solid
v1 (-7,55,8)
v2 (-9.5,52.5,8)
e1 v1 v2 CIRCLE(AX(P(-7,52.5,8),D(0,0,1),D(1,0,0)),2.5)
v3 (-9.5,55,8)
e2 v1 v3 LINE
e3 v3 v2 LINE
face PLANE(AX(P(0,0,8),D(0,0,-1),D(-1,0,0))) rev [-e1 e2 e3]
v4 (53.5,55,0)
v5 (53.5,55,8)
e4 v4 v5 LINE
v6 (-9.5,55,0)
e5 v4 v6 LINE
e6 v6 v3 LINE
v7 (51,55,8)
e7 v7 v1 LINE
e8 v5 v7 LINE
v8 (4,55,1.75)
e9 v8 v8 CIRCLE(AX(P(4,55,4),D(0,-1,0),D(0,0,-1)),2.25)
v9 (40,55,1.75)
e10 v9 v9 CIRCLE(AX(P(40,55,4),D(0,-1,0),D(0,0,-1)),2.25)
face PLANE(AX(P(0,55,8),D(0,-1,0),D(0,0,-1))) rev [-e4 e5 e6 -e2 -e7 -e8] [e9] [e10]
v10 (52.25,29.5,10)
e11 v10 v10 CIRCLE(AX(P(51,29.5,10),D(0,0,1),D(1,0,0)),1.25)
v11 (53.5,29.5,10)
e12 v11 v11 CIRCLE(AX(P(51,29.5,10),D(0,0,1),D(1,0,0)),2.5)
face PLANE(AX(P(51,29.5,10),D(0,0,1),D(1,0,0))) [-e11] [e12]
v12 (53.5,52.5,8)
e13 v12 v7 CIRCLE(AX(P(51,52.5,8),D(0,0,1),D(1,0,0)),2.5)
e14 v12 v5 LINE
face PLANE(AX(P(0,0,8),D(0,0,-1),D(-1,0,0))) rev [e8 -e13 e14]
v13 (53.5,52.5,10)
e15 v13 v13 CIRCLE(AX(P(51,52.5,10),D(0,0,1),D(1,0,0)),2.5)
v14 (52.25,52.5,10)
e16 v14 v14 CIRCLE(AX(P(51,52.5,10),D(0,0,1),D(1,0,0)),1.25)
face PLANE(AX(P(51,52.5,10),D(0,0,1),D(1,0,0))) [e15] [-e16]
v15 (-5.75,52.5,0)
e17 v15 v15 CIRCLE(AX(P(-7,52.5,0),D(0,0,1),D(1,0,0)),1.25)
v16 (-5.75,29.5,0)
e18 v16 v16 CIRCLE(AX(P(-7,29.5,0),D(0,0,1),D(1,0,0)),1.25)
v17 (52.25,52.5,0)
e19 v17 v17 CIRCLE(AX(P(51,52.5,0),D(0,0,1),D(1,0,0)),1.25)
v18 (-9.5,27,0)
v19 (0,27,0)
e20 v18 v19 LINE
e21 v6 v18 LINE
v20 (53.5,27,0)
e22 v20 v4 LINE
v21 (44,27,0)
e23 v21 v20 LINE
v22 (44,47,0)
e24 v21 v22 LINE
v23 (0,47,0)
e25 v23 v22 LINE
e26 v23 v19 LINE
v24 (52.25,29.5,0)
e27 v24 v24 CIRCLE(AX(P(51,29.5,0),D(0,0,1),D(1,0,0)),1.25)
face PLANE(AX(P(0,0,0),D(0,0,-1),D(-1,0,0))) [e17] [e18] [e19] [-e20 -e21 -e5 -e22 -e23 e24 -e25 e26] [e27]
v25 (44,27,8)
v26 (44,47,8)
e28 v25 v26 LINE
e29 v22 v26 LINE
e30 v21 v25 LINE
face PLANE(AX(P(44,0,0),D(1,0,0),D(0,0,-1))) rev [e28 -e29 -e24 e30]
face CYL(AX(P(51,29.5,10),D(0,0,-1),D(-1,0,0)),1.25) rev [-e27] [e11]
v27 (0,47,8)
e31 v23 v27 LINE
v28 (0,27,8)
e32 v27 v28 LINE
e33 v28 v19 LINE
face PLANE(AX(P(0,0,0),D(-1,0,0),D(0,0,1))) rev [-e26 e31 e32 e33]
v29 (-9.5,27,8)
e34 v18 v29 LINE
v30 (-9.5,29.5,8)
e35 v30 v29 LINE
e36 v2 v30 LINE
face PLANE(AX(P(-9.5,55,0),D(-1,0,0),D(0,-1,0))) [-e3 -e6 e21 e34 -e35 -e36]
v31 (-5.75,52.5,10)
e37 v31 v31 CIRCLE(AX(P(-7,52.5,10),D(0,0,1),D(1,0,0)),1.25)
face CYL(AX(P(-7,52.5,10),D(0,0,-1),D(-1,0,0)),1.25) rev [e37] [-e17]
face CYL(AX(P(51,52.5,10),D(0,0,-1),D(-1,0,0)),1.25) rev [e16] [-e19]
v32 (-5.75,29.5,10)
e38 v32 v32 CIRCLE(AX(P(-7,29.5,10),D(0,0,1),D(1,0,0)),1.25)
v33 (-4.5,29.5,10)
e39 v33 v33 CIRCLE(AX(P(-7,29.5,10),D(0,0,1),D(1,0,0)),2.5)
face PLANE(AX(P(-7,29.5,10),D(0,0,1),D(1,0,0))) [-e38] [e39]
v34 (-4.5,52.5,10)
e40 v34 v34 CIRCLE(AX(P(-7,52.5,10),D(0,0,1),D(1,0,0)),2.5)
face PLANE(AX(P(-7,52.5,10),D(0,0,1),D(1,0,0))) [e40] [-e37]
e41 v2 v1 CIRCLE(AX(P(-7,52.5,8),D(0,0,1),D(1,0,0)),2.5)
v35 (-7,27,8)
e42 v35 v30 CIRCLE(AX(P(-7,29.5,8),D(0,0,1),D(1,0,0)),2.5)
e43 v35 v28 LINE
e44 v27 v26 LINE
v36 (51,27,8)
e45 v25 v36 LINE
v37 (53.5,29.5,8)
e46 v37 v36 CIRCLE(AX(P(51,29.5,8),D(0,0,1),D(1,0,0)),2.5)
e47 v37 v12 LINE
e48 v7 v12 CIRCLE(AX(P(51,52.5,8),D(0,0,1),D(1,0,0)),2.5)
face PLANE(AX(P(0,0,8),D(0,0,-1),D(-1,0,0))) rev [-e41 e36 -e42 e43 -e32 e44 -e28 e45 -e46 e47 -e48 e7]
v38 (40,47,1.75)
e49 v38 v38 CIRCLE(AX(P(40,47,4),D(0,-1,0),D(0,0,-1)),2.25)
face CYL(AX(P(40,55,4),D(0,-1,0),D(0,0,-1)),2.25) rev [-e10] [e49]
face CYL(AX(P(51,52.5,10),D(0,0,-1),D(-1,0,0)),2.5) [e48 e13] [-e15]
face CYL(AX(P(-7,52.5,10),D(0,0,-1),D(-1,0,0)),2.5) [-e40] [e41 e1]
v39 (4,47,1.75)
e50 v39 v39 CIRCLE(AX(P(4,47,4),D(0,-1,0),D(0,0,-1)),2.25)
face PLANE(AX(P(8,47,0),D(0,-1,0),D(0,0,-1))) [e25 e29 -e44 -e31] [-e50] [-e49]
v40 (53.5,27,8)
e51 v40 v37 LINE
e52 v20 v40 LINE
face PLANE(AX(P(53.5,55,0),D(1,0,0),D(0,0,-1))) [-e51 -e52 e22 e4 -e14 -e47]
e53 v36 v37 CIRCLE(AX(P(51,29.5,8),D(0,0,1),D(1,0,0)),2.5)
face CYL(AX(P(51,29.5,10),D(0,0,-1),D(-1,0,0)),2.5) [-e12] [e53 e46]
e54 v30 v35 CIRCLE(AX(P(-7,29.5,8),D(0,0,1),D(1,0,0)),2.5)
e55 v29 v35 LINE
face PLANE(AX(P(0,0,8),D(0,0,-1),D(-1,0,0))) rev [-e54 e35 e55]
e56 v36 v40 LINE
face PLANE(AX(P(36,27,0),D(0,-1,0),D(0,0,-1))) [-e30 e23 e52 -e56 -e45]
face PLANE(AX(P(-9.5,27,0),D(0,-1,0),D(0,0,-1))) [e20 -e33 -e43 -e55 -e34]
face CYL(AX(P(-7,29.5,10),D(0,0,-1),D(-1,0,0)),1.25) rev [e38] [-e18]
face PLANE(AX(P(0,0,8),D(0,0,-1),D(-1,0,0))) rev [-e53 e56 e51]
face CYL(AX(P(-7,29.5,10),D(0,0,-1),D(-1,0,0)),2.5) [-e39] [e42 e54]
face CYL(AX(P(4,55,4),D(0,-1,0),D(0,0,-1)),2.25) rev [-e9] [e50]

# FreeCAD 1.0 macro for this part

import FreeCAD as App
import Part
import Sketcher

doc = App.newDocument("Part")
params = doc.addObject("Spreadsheet::Sheet", "Params")
for row, (alias, value) in enumerate([
    ("sketch1_width", "44 mm"),
    ("sketch1_width2", "28 mm"),
    ("sketch1_height", "55 mm"),
    ("sketch1_height2", "39 mm"),
    ("pad1_length", "8 mm"),
    ("sketch2_diameter", "3.5 mm"),
    ("pocket1_length", "20 mm"),
    ("sketch3_width", "63 mm"),
    ("sketch3_width2", "28 mm"),
    ("sketch3_height", "20 mm"),
    ("pad2_length", "8 mm"),
    ("sketch4_diameter", "5 mm"),
    ("sketch4_diameter2", "2.5 mm"),
    ("pad3_length", "2 mm"),
    ("sketch5_diameter", "2.5 mm"),
    ("sketch6_width", "28 mm"),
    ("sketch6_height", "8 mm"),
    ("pocket3_length", "10 mm"),
    ("sketch7_width", "28 mm"),
    ("sketch7_height", "8 mm"),
    ("pad4_length", "8 mm"),
    ("sketch8_width", "44 mm"),
    ("sketch8_height", "47 mm"),
    ("pocket4_length", "8 mm"),
    ("sketch9_diameter", "4.5 mm"),
    ("pocket5_length", "8 mm"),
], start=1):
    params.set(f"A{row}", alias)
    params.set(f"B{row}", "=" + value)
    params.setAlias(f"B{row}", alias)

body = doc.addObject("PartDesign::Body", "Body")

sketch1 = doc.addObject("Sketcher::SketchObject", "Sketch")
body.addObject(sketch1)
sketch1.AttachmentSupport = (doc.XY_Plane, [""])
sketch1.MapMode = "FlatFace"
sketch1.addGeometry([
    Part.LineSegment(App.Vector(0, 55, 0), App.Vector(0, 0, 0)),
    Part.LineSegment(App.Vector(0, 0, 0), App.Vector(44, 0, 0)),
    Part.LineSegment(App.Vector(44, 0, 0), App.Vector(44, 55, 0)),
    Part.LineSegment(App.Vector(44, 55, 0), App.Vector(0, 55, 0)),
    Part.LineSegment(App.Vector(8, 8, 0), App.Vector(8, 47, 0)),
    Part.LineSegment(App.Vector(8, 47, 0), App.Vector(36, 47, 0)),
    Part.LineSegment(App.Vector(36, 47, 0), App.Vector(36, 8, 0)),
    Part.LineSegment(App.Vector(36, 8, 0), App.Vector(8, 8, 0)),
], False)
sketch1.addConstraint([
    Sketcher.Constraint("Coincident", 0, 2, 1, 1),
    Sketcher.Constraint("Coincident", 1, 2, 2, 1),
    Sketcher.Constraint("Coincident", 2, 2, 3, 1),
    Sketcher.Constraint("Coincident", 3, 2, 0, 1),
    Sketcher.Constraint("Coincident", 4, 2, 5, 1),
    Sketcher.Constraint("Coincident", 5, 2, 6, 1),
    Sketcher.Constraint("Coincident", 6, 2, 7, 1),
    Sketcher.Constraint("Coincident", 7, 2, 4, 1),
    Sketcher.Constraint("Vertical", 0),
    Sketcher.Constraint("Horizontal", 1),
    Sketcher.Constraint("Vertical", 2),
    Sketcher.Constraint("Horizontal", 3),
    Sketcher.Constraint("Vertical", 4),
    Sketcher.Constraint("Horizontal", 5),
    Sketcher.Constraint("Vertical", 6),
    Sketcher.Constraint("Horizontal", 7),
    Sketcher.Constraint("Coincident", 0, 2, -1, 1),
    Sketcher.Constraint("DistanceX", 1, 1, 1, 2, 44.0),
    Sketcher.Constraint("DistanceX", 5, 1, 5, 2, 28.0),
    Sketcher.Constraint("DistanceY", 0, 2, 0, 1, 55.0),
    Sketcher.Constraint("DistanceY", 4, 1, 4, 2, 39.0),
    Sketcher.Constraint("DistanceX", -1, 1, 4, 2, 8.0),
    Sketcher.Constraint("DistanceY", -1, 1, 4, 2, 47.0),
])
sketch1.setExpression("Constraints[17]", "Params.sketch1_width")
sketch1.setExpression("Constraints[18]", "Params.sketch1_width2")
sketch1.setExpression("Constraints[19]", "Params.sketch1_height")
sketch1.setExpression("Constraints[20]", "Params.sketch1_height2")
pad1 = doc.addObject("PartDesign::Pad", "Pad")
body.addObject(pad1)
pad1.Profile = sketch1
pad1.setExpression("Length", "Params.pad1_length")

sketch2 = doc.addObject("Sketcher::SketchObject", "Sketch001")
body.addObject(sketch2)
sketch2.AttachmentSupport = (doc.XZ_Plane, [""])
sketch2.MapMode = "FlatFace"
sketch2.addGeometry([
    Part.Circle(App.Vector(4, 4, 0), App.Vector(0, 0, 1), 1.8),
    Part.Circle(App.Vector(40, 4, 0), App.Vector(0, 0, 1), 1.8),
], False)
sketch2.addConstraint([
    Sketcher.Constraint("Equal", 0, 1),
    Sketcher.Constraint("Horizontal", 0, 3, 1, 3),
    Sketcher.Constraint("Diameter", 0, 3.5),
    Sketcher.Constraint("DistanceX", -1, 1, 0, 3, 4.0),
    Sketcher.Constraint("DistanceY", -1, 1, 0, 3, 4.0),
    Sketcher.Constraint("DistanceX", -1, 1, 1, 3, 40.0),
])
sketch2.setExpression("Constraints[2]", "Params.sketch2_diameter")
pocket1 = doc.addObject("PartDesign::Pocket", "Pocket")
body.addObject(pocket1)
pocket1.Profile = sketch2
pocket1.setExpression("Length", "Params.pocket1_length")

sketch3 = doc.addObject("Sketcher::SketchObject", "Sketch002")
body.addObject(sketch3)
sketch3.AttachmentSupport = (doc.XY_Plane, [""])
sketch3.MapMode = "FlatFace"
sketch3.AttachmentOffset = App.Placement(App.Vector(0, 0, 8), App.Rotation())
sketch3.addGeometry([
    Part.LineSegment(App.Vector(54, 55, 0), App.Vector(-10, 55, 0)),
    Part.LineSegment(App.Vector(-10, 55, 0), App.Vector(-10, 27, 0)),
    Part.LineSegment(App.Vector(-10, 27, 0), App.Vector(8, 27, 0)),
    Part.LineSegment(App.Vector(8, 27, 0), App.Vector(8, 47, 0)),
    Part.LineSegment(App.Vector(8, 47, 0), App.Vector(36, 47, 0)),
    Part.LineSegment(App.Vector(36, 47, 0), App.Vector(36, 27, 0)),
    Part.LineSegment(App.Vector(36, 27, 0), App.Vector(54, 27, 0)),
    Part.LineSegment(App.Vector(54, 27, 0), App.Vector(54, 55, 0)),
], False)
sketch3.addConstraint([
    Sketcher.Constraint("Coincident", 0, 2, 1, 1),
    Sketcher.Constraint("Coincident", 1, 2, 2, 1),
    Sketcher.Constraint("Coincident", 2, 2, 3, 1),
    Sketcher.Constraint("Coincident", 3, 2, 4, 1),
    Sketcher.Constraint("Coincident", 4, 2, 5, 1),
    Sketcher.Constraint("Coincident", 5, 2, 6, 1),
    Sketcher.Constraint("Coincident", 6, 2, 7, 1),
    Sketcher.Constraint("Coincident", 7, 2, 0, 1),
    Sketcher.Constraint("Horizontal", 0),
    Sketcher.Constraint("Vertical", 1),
    Sketcher.Constraint("Horizontal", 2),
    Sketcher.Constraint("Vertical", 3),
    Sketcher.Constraint("Horizontal", 4),
    Sketcher.Constraint("Vertical", 5),
    Sketcher.Constraint("Horizontal", 6),
    Sketcher.Constraint("Vertical", 7),
    Sketcher.Constraint("Horizontal", 2, 2, 5, 2),
    Sketcher.Constraint("Equal", 2, 6),
    Sketcher.Constraint("Equal", 4, 1),
    Sketcher.Constraint("DistanceX", 0, 2, 0, 1, 63.0),
    Sketcher.Constraint("DistanceX", 4, 1, 4, 2, 28.0),
    Sketcher.Constraint("DistanceY", 3, 1, 3, 2, 20.0),
    Sketcher.Constraint("DistanceY", -1, 1, 0, 2, 55.0),
    Sketcher.Constraint("DistanceX", -1, 1, 2, 2, 8.0),
])
sketch3.setExpression("Constraints[19]", "Params.sketch3_width")
sketch3.setExpression("Constraints[20]", "Params.sketch3_width2")
sketch3.setExpression("Constraints[21]", "Params.sketch3_height")
pad2 = doc.addObject("PartDesign::Pad", "Pad001")
body.addObject(pad2)
pad2.Profile = sketch3
pad2.setExpression("Length", "Params.pad2_length")
pad2.Reversed = True

sketch4 = doc.addObject("Sketcher::SketchObject", "Sketch003")
body.addObject(sketch4)
sketch4.AttachmentSupport = (doc.XY_Plane, [""])
sketch4.MapMode = "FlatFace"
sketch4.AttachmentOffset = App.Placement(App.Vector(0, 0, 8), App.Rotation())
sketch4.addGeometry([
    Part.Circle(App.Vector(-7, 52.5, 0), App.Vector(0, 0, 1), 2.5),
    Part.Circle(App.Vector(-7, 52.5, 0), App.Vector(0, 0, 1), 1.2),
    Part.Circle(App.Vector(-7, 29.5, 0), App.Vector(0, 0, 1), 2.5),
    Part.Circle(App.Vector(-7, 29.5, 0), App.Vector(0, 0, 1), 1.2),
    Part.Circle(App.Vector(51, 29.5, 0), App.Vector(0, 0, 1), 2.5),
    Part.Circle(App.Vector(51, 29.5, 0), App.Vector(0, 0, 1), 1.2),
    Part.Circle(App.Vector(51, 52.5, 0), App.Vector(0, 0, 1), 2.5),
    Part.Circle(App.Vector(51, 52.5, 0), App.Vector(0, 0, 1), 1.2),
], False)
sketch4.addConstraint([
    Sketcher.Constraint("Coincident", 1, 3, 0, 3),
    Sketcher.Constraint("Coincident", 3, 3, 2, 3),
    Sketcher.Constraint("Coincident", 5, 3, 4, 3),
    Sketcher.Constraint("Coincident", 7, 3, 6, 3),
    Sketcher.Constraint("Equal", 0, 2),
    Sketcher.Constraint("Equal", 1, 3),
    Sketcher.Constraint("Equal", 2, 4),
    Sketcher.Constraint("Equal", 3, 5),
    Sketcher.Constraint("Equal", 4, 6),
    Sketcher.Constraint("Equal", 5, 7),
    Sketcher.Constraint("Horizontal", 3, 3, 4, 3),
    Sketcher.Constraint("Horizontal", 1, 3, 6, 3),
    Sketcher.Constraint("Vertical", 1, 3, 2, 3),
    Sketcher.Constraint("Vertical", 5, 3, 6, 3),
    Sketcher.Constraint("Diameter", 0, 5.0),
    Sketcher.Constraint("Diameter", 1, 2.5),
    Sketcher.Constraint("DistanceX", 0, 3, -1, 1, 7.0),
    Sketcher.Constraint("DistanceX", -1, 1, 4, 3, 51.0),
    Sketcher.Constraint("DistanceY", 2, 3, 0, 3, 23.0),
    Sketcher.Constraint("DistanceY", -1, 1, 0, 3, 52.5),
])
sketch4.setExpression("Constraints[14]", "Params.sketch4_diameter")
sketch4.setExpression("Constraints[15]", "Params.sketch4_diameter2")
pad3 = doc.addObject("PartDesign::Pad", "Pad002")
body.addObject(pad3)
pad3.Profile = sketch4
pad3.setExpression("Length", "Params.pad3_length")

sketch5 = doc.addObject("Sketcher::SketchObject", "Sketch004")
body.addObject(sketch5)
sketch5.AttachmentSupport = (doc.XY_Plane, [""])
sketch5.MapMode = "FlatFace"
sketch5.AttachmentOffset = App.Placement(App.Vector(0, 0, 8), App.Rotation())
sketch5.addGeometry([
    Part.Circle(App.Vector(-7, 52.5, 0), App.Vector(0, 0, 1), 1.2),
    Part.Circle(App.Vector(-7, 29.5, 0), App.Vector(0, 0, 1), 1.2),
    Part.Circle(App.Vector(51, 52.5, 0), App.Vector(0, 0, 1), 1.2),
    Part.Circle(App.Vector(51, 29.5, 0), App.Vector(0, 0, 1), 1.2),
], False)
sketch5.addConstraint([
    Sketcher.Constraint("Equal", 0, 1),
    Sketcher.Constraint("Equal", 1, 2),
    Sketcher.Constraint("Equal", 2, 3),
    Sketcher.Constraint("Horizontal", 0, 3, 2, 3),
    Sketcher.Constraint("Horizontal", 1, 3, 3, 3),
    Sketcher.Constraint("Vertical", 0, 3, 1, 3),
    Sketcher.Constraint("Vertical", 2, 3, 3, 3),
    Sketcher.Constraint("Diameter", 0, 2.5),
    Sketcher.Constraint("DistanceX", 0, 3, -1, 1, 7.0),
    Sketcher.Constraint("DistanceX", -1, 1, 2, 3, 51.0),
    Sketcher.Constraint("DistanceY", 1, 3, 0, 3, 23.0),
    Sketcher.Constraint("DistanceY", -1, 1, 0, 3, 52.5),
])
sketch5.setExpression("Constraints[7]", "Params.sketch5_diameter")
pocket2 = doc.addObject("PartDesign::Pocket", "Pocket001")
body.addObject(pocket2)
pocket2.Profile = sketch5
pocket2.Type = "ThroughAll"

sketch6 = doc.addObject("Sketcher::SketchObject", "Sketch005")
body.addObject(sketch6)
sketch6.AttachmentSupport = (doc.XY_Plane, [""])
sketch6.MapMode = "FlatFace"
sketch6.AttachmentOffset = App.Placement(App.Vector(0, 0, 8), App.Rotation())
sketch6.addGeometry([
    Part.LineSegment(App.Vector(8, 55, 0), App.Vector(8, 47, 0)),
    Part.LineSegment(App.Vector(8, 47, 0), App.Vector(36, 47, 0)),
    Part.LineSegment(App.Vector(36, 47, 0), App.Vector(36, 55, 0)),
    Part.LineSegment(App.Vector(36, 55, 0), App.Vector(8, 55, 0)),
], False)
sketch6.addConstraint([
    Sketcher.Constraint("Coincident", 0, 2, 1, 1),
    Sketcher.Constraint("Coincident", 1, 2, 2, 1),
    Sketcher.Constraint("Coincident", 2, 2, 3, 1),
    Sketcher.Constraint("Coincident", 3, 2, 0, 1),
    Sketcher.Constraint("Vertical", 0),
    Sketcher.Constraint("Horizontal", 1),
    Sketcher.Constraint("Vertical", 2),
    Sketcher.Constraint("Horizontal", 3),
    Sketcher.Constraint("DistanceX", 1, 1, 1, 2, 28.0),
    Sketcher.Constraint("DistanceY", 0, 2, 0, 1, 8.0),
    Sketcher.Constraint("DistanceX", -1, 1, 0, 2, 8.0),
    Sketcher.Constraint("DistanceY", -1, 1, 0, 2, 47.0),
])
sketch6.setExpression("Constraints[8]", "Params.sketch6_width")
sketch6.setExpression("Constraints[9]", "Params.sketch6_height")
pocket3 = doc.addObject("PartDesign::Pocket", "Pocket002")
body.addObject(pocket3)
pocket3.Profile = sketch6
pocket3.setExpression("Length", "Params.pocket3_length")

sketch7 = doc.addObject("Sketcher::SketchObject", "Sketch006")
body.addObject(sketch7)
sketch7.AttachmentSupport = (doc.XY_Plane, [""])
sketch7.MapMode = "FlatFace"
sketch7.AttachmentOffset = App.Placement(App.Vector(0, 0, 8), App.Rotation())
sketch7.addGeometry([
    Part.LineSegment(App.Vector(8, 55, 0), App.Vector(8, 47, 0)),
    Part.LineSegment(App.Vector(8, 47, 0), App.Vector(36, 47, 0)),
    Part.LineSegment(App.Vector(36, 47, 0), App.Vector(36, 55, 0)),
    Part.LineSegment(App.Vector(36, 55, 0), App.Vector(8, 55, 0)),
], False)
sketch7.addConstraint([
    Sketcher.Constraint("Coincident", 0, 2, 1, 1),
    Sketcher.Constraint("Coincident", 1, 2, 2, 1),
    Sketcher.Constraint("Coincident", 2, 2, 3, 1),
    Sketcher.Constraint("Coincident", 3, 2, 0, 1),
    Sketcher.Constraint("Vertical", 0),
    Sketcher.Constraint("Horizontal", 1),
    Sketcher.Constraint("Vertical", 2),
    Sketcher.Constraint("Horizontal", 3),
    Sketcher.Constraint("DistanceX", 1, 1, 1, 2, 28.0),
    Sketcher.Constraint("DistanceY", 0, 2, 0, 1, 8.0),
    Sketcher.Constraint("DistanceX", -1, 1, 0, 2, 8.0),
    Sketcher.Constraint("DistanceY", -1, 1, 0, 2, 47.0),
])
sketch7.setExpression("Constraints[8]", "Params.sketch7_width")
sketch7.setExpression("Constraints[9]", "Params.sketch7_height")
pad4 = doc.addObject("PartDesign::Pad", "Pad003")
body.addObject(pad4)
pad4.Profile = sketch7
pad4.setExpression("Length", "Params.pad4_length")
pad4.Reversed = True

sketch8 = doc.addObject("Sketcher::SketchObject", "Sketch007")
body.addObject(sketch8)
sketch8.AttachmentSupport = (doc.XY_Plane, [""])
sketch8.MapMode = "FlatFace"
sketch8.AttachmentOffset = App.Placement(App.Vector(0, 0, 8), App.Rotation())
sketch8.addGeometry([
    Part.LineSegment(App.Vector(0, 47, 0), App.Vector(0, 0, 0)),
    Part.LineSegment(App.Vector(0, 0, 0), App.Vector(44, 0, 0)),
    Part.LineSegment(App.Vector(44, 0, 0), App.Vector(44, 47, 0)),
    Part.LineSegment(App.Vector(44, 47, 0), App.Vector(0, 47, 0)),
], False)
sketch8.addConstraint([
    Sketcher.Constraint("Coincident", 0, 2, 1, 1),
    Sketcher.Constraint("Coincident", 1, 2, 2, 1),
    Sketcher.Constraint("Coincident", 2, 2, 3, 1),
    Sketcher.Constraint("Coincident", 3, 2, 0, 1),
    Sketcher.Constraint("Vertical", 0),
    Sketcher.Constraint("Horizontal", 1),
    Sketcher.Constraint("Vertical", 2),
    Sketcher.Constraint("Horizontal", 3),
    Sketcher.Constraint("Coincident", 0, 2, -1, 1),
    Sketcher.Constraint("DistanceX", 1, 1, 1, 2, 44.0),
    Sketcher.Constraint("DistanceY", 0, 2, 0, 1, 47.0),
])
sketch8.setExpression("Constraints[9]", "Params.sketch8_width")
sketch8.setExpression("Constraints[10]", "Params.sketch8_height")
pocket4 = doc.addObject("PartDesign::Pocket", "Pocket003")
body.addObject(pocket4)
pocket4.Profile = sketch8
pocket4.setExpression("Length", "Params.pocket4_length")

sketch9 = doc.addObject("Sketcher::SketchObject", "Sketch008")
body.addObject(sketch9)
sketch9.AttachmentSupport = (doc.XZ_Plane, [""])
sketch9.MapMode = "FlatFace"
sketch9.AttachmentOffset = App.Placement(App.Vector(0, 0, -47), App.Rotation())
sketch9.addGeometry([
    Part.Circle(App.Vector(4, 4, 0), App.Vector(0, 0, 1), 2.2),
    Part.Circle(App.Vector(40, 4, 0), App.Vector(0, 0, 1), 2.2),
], False)
sketch9.addConstraint([
    Sketcher.Constraint("Equal", 0, 1),
    Sketcher.Constraint("Horizontal", 0, 3, 1, 3),
    Sketcher.Constraint("Diameter", 0, 4.5),
    Sketcher.Constraint("DistanceX", -1, 1, 0, 3, 4.0),
    Sketcher.Constraint("DistanceY", -1, 1, 0, 3, 4.0),
    Sketcher.Constraint("DistanceX", -1, 1, 1, 3, 40.0),
])
sketch9.setExpression("Constraints[2]", "Params.sketch9_diameter")
pocket5 = doc.addObject("PartDesign::Pocket", "Pocket004")
body.addObject(pocket5)
pocket5.Profile = sketch9
pocket5.setExpression("Length", "Params.pocket5_length")

doc.recompute()
